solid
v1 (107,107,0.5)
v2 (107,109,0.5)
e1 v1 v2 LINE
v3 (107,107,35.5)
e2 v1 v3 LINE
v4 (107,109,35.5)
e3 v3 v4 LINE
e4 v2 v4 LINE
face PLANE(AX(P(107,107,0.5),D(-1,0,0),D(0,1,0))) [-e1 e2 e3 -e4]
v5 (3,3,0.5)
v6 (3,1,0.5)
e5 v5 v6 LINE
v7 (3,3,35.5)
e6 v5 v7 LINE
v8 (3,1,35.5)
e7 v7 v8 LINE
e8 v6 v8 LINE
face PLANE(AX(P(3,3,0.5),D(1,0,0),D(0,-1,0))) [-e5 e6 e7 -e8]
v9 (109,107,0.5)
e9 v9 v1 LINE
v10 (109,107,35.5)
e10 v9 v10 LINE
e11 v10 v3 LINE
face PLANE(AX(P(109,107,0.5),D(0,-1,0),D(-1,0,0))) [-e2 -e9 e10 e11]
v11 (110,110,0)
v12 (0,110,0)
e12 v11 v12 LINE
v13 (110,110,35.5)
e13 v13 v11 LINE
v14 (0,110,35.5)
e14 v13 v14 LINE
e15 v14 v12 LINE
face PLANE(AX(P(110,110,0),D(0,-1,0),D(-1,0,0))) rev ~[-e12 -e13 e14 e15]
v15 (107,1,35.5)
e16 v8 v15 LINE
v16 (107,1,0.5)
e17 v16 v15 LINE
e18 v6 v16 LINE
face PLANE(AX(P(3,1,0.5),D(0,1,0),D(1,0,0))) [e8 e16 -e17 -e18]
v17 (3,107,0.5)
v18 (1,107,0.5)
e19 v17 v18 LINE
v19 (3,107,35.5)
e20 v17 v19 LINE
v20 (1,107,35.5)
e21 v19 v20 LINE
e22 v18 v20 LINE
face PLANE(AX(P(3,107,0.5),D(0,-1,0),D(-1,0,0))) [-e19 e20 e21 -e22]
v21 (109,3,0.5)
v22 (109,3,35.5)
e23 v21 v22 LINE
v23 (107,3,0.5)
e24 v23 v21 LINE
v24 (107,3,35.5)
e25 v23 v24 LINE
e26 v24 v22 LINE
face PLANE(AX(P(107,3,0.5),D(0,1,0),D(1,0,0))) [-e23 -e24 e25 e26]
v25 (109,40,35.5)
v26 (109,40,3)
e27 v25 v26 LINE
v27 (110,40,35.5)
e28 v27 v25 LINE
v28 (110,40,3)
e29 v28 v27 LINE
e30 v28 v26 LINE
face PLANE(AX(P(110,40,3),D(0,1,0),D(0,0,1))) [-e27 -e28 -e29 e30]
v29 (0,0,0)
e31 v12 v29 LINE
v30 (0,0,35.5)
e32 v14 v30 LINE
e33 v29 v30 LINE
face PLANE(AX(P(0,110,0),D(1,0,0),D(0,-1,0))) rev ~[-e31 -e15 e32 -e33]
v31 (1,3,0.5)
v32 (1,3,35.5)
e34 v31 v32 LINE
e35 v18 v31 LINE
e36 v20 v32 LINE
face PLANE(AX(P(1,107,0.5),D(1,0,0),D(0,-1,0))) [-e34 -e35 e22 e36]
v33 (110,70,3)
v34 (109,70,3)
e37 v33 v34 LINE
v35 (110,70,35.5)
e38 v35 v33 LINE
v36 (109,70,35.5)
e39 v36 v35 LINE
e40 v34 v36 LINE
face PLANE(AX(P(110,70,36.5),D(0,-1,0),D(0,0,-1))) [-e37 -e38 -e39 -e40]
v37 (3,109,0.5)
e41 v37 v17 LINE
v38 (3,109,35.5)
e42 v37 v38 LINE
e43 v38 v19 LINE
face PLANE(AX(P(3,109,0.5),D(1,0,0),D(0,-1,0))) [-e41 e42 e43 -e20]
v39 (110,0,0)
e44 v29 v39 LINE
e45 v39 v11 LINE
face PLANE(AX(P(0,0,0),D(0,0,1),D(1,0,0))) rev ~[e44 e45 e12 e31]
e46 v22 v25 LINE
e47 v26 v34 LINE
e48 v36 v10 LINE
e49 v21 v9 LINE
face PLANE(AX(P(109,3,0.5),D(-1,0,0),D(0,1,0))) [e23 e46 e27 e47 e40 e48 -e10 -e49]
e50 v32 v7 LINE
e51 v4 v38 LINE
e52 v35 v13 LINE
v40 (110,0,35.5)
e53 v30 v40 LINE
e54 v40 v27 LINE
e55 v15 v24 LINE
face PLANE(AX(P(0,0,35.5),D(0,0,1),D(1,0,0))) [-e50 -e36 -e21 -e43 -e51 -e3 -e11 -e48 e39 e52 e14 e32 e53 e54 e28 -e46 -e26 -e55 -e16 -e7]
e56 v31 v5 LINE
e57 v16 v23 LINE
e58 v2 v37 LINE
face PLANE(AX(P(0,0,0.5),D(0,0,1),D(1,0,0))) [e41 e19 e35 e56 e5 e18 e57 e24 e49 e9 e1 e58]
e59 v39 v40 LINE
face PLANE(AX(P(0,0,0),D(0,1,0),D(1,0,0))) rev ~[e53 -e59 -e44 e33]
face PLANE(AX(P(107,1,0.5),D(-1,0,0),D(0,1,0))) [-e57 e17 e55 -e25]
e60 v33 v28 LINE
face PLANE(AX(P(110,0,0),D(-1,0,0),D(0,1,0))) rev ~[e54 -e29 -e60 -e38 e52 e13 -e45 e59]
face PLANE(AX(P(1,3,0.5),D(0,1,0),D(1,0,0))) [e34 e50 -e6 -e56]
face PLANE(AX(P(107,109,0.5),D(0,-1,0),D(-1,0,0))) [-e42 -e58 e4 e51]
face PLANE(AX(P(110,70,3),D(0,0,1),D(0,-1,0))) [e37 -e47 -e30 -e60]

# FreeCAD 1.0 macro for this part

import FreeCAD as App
import Part
import Sketcher

V = App.Vector
Q = App.Units.Quantity

doc = App.newDocument("Part")
body = doc.addObject("PartDesign::Body", "Body")

sketch1 = doc.addObject("Sketcher::SketchObject", "Sketch")
body.addObject(sketch1)
sketch1.AttachmentSupport = (doc.XY_Plane, [""])
sketch1.MapMode = "FlatFace"
sketch1.addGeometry([
    Part.LineSegment(V(0, 110, 0), V(0, 0, 0)),
    Part.LineSegment(V(0, 0, 0), V(110, 0, 0)),
    Part.LineSegment(V(110, 0, 0), V(110, 110, 0)),
    Part.LineSegment(V(110, 110, 0), V(0, 110, 0)),
], False)
sketch1.addConstraint([
    Sketcher.Constraint("Coincident", 0, 2, 1, 1),
    Sketcher.Constraint("Coincident", 1, 2, 2, 1),
    Sketcher.Constraint("Coincident", 2, 2, 3, 1),
    Sketcher.Constraint("Coincident", 3, 2, 0, 1),
    Sketcher.Constraint("Vertical", 0),
    Sketcher.Constraint("Horizontal", 1),
    Sketcher.Constraint("Vertical", 2),
    Sketcher.Constraint("Horizontal", 3),
    Sketcher.Constraint("Coincident", 0, 2, -1, 1),
    Sketcher.Constraint("Equal", 3, 0),
    Sketcher.Constraint("DistanceX", 1, 1, 1, 2, Q("110 mm")),
])
pad1 = doc.addObject("PartDesign::Pad", "Pad")
body.addObject(pad1)
pad1.Profile = sketch1
pad1.Length = 0.5

sketch2 = doc.addObject("Sketcher::SketchObject", "Sketch001")
body.addObject(sketch2)
sketch2.AttachmentSupport = (doc.XY_Plane, [""])
sketch2.MapMode = "FlatFace"
sketch2.AttachmentOffset = App.Placement(V(0, 0, 0.5), App.Rotation())
sketch2.addGeometry([
    Part.LineSegment(V(110, 110, 0), V(0, 110, 0)),
    Part.LineSegment(V(0, 110, 0), V(0, 0, 0)),
    Part.LineSegment(V(0, 0, 0), V(110, 0, 0)),
    Part.LineSegment(V(110, 0, 0), V(110, 110, 0)),
    Part.LineSegment(V(107, 109, 0), V(107, 107, 0)),
    Part.LineSegment(V(107, 107, 0), V(109, 107, 0)),
    Part.LineSegment(V(109, 107, 0), V(109, 3, 0)),
    Part.LineSegment(V(109, 3, 0), V(107, 3, 0)),
    Part.LineSegment(V(107, 3, 0), V(107, 1, 0)),
    Part.LineSegment(V(107, 1, 0), V(3, 1, 0)),
    Part.LineSegment(V(3, 1, 0), V(3, 3, 0)),
    Part.LineSegment(V(3, 3, 0), V(1, 3, 0)),
    Part.LineSegment(V(1, 3, 0), V(1, 107, 0)),
    Part.LineSegment(V(1, 107, 0), V(3, 107, 0)),
    Part.LineSegment(V(3, 107, 0), V(3, 109, 0)),
    Part.LineSegment(V(3, 109, 0), V(107, 109, 0)),
], False)
sketch2.addConstraint([
    Sketcher.Constraint("Coincident", 0, 2, 1, 1),
    Sketcher.Constraint("Coincident", 1, 2, 2, 1),
    Sketcher.Constraint("Coincident", 2, 2, 3, 1),
    Sketcher.Constraint("Coincident", 3, 2, 0, 1),
    Sketcher.Constraint("Coincident", 4, 2, 5, 1),
    Sketcher.Constraint("Coincident", 5, 2, 6, 1),
    Sketcher.Constraint("Coincident", 6, 2, 7, 1),
    Sketcher.Constraint("Coincident", 7, 2, 8, 1),
    Sketcher.Constraint("Coincident", 8, 2, 9, 1),
    Sketcher.Constraint("Coincident", 9, 2, 10, 1),
    Sketcher.Constraint("Coincident", 10, 2, 11, 1),
    Sketcher.Constraint("Coincident", 11, 2, 12, 1),
    Sketcher.Constraint("Coincident", 12, 2, 13, 1),
    Sketcher.Constraint("Coincident", 13, 2, 14, 1),
    Sketcher.Constraint("Coincident", 14, 2, 15, 1),
    Sketcher.Constraint("Coincident", 15, 2, 4, 1),
    Sketcher.Constraint("Horizontal", 0),
    Sketcher.Constraint("Vertical", 1),
    Sketcher.Constraint("Horizontal", 2),
    Sketcher.Constraint("Vertical", 3),
    Sketcher.Constraint("Vertical", 4),
    Sketcher.Constraint("Horizontal", 5),
    Sketcher.Constraint("Vertical", 6),
    Sketcher.Constraint("Horizontal", 7),
    Sketcher.Constraint("Vertical", 8),
    Sketcher.Constraint("Horizontal", 9),
    Sketcher.Constraint("Vertical", 10),
    Sketcher.Constraint("Horizontal", 11),
    Sketcher.Constraint("Vertical", 12),
    Sketcher.Constraint("Horizontal", 13),
    Sketcher.Constraint("Vertical", 14),
    Sketcher.Constraint("Horizontal", 15),
    Sketcher.Constraint("Coincident", 1, 2, -1, 1),
    Sketcher.Constraint("Horizontal", 7, 2, 10, 2),
    Sketcher.Constraint("Horizontal", 5, 2, 12, 2),
    Sketcher.Constraint("Vertical", 4, 2, 7, 2),
    Sketcher.Constraint("Vertical", 10, 2, 13, 2),
    Sketcher.Constraint("Equal", 7, 11),
    Sketcher.Constraint("Equal", 2, 1),
    Sketcher.Constraint("Equal", 13, 4),
    Sketcher.Constraint("Equal", 15, 6),
    Sketcher.Constraint("Equal", 4, 8),
    Sketcher.Constraint("DistanceX", 0, 2, 0, 1, Q("110 mm")),
    Sketcher.Constraint("DistanceX", -1, 1, 4, 2, Q("107 mm")),
    Sketcher.Constraint("DistanceY", -1, 1, 4, 2, Q("107 mm")),
    Sketcher.Constraint("DistanceY", 6, 2, 3, 2, Q("107 mm")),
    Sketcher.Constraint("DistanceX", 5, 1, 5, 2, Q("2 mm")),
])
pad2 = doc.addObject("PartDesign::Pad", "Pad001")
body.addObject(pad2)
pad2.Profile = sketch2
pad2.Length = 35

sketch3 = doc.addObject("Sketcher::SketchObject", "Sketch002")
body.addObject(sketch3)
sketch3.AttachmentSupport = (doc.YZ_Plane, [""])
sketch3.MapMode = "FlatFace"
sketch3.AttachmentOffset = App.Placement(V(0, 0, 110), App.Rotation())
sketch3.addGeometry([
    Part.LineSegment(V(40, 36, 0), V(40, 3, 0)),
    Part.LineSegment(V(40, 3, 0), V(70, 3, 0)),
    Part.LineSegment(V(70, 3, 0), V(70, 36, 0)),
    Part.LineSegment(V(70, 36, 0), V(40, 36, 0)),
], False)
sketch3.addConstraint([
    Sketcher.Constraint("Coincident", 0, 2, 1, 1),
    Sketcher.Constraint("Coincident", 1, 2, 2, 1),
    Sketcher.Constraint("Coincident", 2, 2, 3, 1),
    Sketcher.Constraint("Coincident", 3, 2, 0, 1),
    Sketcher.Constraint("Vertical", 0),
    Sketcher.Constraint("Horizontal", 1),
    Sketcher.Constraint("Vertical", 2),
    Sketcher.Constraint("Horizontal", 3),
    Sketcher.Constraint("DistanceX", -1, 1, 0, 2, Q("40 mm")),
    Sketcher.Constraint("DistanceY", -1, 1, 0, 2, Q("3 mm")),
    Sketcher.Constraint("DistanceX", 1, 1, 1, 2, Q("30 mm")),
    Sketcher.Constraint("DistanceY", 0, 2, 0, 1, Q("33.5 mm")),
])
pocket1 = doc.addObject("PartDesign::Pocket", "Pocket")
body.addObject(pocket1)
pocket1.Profile = sketch3
pocket1.Length = 35

doc.recompute()
